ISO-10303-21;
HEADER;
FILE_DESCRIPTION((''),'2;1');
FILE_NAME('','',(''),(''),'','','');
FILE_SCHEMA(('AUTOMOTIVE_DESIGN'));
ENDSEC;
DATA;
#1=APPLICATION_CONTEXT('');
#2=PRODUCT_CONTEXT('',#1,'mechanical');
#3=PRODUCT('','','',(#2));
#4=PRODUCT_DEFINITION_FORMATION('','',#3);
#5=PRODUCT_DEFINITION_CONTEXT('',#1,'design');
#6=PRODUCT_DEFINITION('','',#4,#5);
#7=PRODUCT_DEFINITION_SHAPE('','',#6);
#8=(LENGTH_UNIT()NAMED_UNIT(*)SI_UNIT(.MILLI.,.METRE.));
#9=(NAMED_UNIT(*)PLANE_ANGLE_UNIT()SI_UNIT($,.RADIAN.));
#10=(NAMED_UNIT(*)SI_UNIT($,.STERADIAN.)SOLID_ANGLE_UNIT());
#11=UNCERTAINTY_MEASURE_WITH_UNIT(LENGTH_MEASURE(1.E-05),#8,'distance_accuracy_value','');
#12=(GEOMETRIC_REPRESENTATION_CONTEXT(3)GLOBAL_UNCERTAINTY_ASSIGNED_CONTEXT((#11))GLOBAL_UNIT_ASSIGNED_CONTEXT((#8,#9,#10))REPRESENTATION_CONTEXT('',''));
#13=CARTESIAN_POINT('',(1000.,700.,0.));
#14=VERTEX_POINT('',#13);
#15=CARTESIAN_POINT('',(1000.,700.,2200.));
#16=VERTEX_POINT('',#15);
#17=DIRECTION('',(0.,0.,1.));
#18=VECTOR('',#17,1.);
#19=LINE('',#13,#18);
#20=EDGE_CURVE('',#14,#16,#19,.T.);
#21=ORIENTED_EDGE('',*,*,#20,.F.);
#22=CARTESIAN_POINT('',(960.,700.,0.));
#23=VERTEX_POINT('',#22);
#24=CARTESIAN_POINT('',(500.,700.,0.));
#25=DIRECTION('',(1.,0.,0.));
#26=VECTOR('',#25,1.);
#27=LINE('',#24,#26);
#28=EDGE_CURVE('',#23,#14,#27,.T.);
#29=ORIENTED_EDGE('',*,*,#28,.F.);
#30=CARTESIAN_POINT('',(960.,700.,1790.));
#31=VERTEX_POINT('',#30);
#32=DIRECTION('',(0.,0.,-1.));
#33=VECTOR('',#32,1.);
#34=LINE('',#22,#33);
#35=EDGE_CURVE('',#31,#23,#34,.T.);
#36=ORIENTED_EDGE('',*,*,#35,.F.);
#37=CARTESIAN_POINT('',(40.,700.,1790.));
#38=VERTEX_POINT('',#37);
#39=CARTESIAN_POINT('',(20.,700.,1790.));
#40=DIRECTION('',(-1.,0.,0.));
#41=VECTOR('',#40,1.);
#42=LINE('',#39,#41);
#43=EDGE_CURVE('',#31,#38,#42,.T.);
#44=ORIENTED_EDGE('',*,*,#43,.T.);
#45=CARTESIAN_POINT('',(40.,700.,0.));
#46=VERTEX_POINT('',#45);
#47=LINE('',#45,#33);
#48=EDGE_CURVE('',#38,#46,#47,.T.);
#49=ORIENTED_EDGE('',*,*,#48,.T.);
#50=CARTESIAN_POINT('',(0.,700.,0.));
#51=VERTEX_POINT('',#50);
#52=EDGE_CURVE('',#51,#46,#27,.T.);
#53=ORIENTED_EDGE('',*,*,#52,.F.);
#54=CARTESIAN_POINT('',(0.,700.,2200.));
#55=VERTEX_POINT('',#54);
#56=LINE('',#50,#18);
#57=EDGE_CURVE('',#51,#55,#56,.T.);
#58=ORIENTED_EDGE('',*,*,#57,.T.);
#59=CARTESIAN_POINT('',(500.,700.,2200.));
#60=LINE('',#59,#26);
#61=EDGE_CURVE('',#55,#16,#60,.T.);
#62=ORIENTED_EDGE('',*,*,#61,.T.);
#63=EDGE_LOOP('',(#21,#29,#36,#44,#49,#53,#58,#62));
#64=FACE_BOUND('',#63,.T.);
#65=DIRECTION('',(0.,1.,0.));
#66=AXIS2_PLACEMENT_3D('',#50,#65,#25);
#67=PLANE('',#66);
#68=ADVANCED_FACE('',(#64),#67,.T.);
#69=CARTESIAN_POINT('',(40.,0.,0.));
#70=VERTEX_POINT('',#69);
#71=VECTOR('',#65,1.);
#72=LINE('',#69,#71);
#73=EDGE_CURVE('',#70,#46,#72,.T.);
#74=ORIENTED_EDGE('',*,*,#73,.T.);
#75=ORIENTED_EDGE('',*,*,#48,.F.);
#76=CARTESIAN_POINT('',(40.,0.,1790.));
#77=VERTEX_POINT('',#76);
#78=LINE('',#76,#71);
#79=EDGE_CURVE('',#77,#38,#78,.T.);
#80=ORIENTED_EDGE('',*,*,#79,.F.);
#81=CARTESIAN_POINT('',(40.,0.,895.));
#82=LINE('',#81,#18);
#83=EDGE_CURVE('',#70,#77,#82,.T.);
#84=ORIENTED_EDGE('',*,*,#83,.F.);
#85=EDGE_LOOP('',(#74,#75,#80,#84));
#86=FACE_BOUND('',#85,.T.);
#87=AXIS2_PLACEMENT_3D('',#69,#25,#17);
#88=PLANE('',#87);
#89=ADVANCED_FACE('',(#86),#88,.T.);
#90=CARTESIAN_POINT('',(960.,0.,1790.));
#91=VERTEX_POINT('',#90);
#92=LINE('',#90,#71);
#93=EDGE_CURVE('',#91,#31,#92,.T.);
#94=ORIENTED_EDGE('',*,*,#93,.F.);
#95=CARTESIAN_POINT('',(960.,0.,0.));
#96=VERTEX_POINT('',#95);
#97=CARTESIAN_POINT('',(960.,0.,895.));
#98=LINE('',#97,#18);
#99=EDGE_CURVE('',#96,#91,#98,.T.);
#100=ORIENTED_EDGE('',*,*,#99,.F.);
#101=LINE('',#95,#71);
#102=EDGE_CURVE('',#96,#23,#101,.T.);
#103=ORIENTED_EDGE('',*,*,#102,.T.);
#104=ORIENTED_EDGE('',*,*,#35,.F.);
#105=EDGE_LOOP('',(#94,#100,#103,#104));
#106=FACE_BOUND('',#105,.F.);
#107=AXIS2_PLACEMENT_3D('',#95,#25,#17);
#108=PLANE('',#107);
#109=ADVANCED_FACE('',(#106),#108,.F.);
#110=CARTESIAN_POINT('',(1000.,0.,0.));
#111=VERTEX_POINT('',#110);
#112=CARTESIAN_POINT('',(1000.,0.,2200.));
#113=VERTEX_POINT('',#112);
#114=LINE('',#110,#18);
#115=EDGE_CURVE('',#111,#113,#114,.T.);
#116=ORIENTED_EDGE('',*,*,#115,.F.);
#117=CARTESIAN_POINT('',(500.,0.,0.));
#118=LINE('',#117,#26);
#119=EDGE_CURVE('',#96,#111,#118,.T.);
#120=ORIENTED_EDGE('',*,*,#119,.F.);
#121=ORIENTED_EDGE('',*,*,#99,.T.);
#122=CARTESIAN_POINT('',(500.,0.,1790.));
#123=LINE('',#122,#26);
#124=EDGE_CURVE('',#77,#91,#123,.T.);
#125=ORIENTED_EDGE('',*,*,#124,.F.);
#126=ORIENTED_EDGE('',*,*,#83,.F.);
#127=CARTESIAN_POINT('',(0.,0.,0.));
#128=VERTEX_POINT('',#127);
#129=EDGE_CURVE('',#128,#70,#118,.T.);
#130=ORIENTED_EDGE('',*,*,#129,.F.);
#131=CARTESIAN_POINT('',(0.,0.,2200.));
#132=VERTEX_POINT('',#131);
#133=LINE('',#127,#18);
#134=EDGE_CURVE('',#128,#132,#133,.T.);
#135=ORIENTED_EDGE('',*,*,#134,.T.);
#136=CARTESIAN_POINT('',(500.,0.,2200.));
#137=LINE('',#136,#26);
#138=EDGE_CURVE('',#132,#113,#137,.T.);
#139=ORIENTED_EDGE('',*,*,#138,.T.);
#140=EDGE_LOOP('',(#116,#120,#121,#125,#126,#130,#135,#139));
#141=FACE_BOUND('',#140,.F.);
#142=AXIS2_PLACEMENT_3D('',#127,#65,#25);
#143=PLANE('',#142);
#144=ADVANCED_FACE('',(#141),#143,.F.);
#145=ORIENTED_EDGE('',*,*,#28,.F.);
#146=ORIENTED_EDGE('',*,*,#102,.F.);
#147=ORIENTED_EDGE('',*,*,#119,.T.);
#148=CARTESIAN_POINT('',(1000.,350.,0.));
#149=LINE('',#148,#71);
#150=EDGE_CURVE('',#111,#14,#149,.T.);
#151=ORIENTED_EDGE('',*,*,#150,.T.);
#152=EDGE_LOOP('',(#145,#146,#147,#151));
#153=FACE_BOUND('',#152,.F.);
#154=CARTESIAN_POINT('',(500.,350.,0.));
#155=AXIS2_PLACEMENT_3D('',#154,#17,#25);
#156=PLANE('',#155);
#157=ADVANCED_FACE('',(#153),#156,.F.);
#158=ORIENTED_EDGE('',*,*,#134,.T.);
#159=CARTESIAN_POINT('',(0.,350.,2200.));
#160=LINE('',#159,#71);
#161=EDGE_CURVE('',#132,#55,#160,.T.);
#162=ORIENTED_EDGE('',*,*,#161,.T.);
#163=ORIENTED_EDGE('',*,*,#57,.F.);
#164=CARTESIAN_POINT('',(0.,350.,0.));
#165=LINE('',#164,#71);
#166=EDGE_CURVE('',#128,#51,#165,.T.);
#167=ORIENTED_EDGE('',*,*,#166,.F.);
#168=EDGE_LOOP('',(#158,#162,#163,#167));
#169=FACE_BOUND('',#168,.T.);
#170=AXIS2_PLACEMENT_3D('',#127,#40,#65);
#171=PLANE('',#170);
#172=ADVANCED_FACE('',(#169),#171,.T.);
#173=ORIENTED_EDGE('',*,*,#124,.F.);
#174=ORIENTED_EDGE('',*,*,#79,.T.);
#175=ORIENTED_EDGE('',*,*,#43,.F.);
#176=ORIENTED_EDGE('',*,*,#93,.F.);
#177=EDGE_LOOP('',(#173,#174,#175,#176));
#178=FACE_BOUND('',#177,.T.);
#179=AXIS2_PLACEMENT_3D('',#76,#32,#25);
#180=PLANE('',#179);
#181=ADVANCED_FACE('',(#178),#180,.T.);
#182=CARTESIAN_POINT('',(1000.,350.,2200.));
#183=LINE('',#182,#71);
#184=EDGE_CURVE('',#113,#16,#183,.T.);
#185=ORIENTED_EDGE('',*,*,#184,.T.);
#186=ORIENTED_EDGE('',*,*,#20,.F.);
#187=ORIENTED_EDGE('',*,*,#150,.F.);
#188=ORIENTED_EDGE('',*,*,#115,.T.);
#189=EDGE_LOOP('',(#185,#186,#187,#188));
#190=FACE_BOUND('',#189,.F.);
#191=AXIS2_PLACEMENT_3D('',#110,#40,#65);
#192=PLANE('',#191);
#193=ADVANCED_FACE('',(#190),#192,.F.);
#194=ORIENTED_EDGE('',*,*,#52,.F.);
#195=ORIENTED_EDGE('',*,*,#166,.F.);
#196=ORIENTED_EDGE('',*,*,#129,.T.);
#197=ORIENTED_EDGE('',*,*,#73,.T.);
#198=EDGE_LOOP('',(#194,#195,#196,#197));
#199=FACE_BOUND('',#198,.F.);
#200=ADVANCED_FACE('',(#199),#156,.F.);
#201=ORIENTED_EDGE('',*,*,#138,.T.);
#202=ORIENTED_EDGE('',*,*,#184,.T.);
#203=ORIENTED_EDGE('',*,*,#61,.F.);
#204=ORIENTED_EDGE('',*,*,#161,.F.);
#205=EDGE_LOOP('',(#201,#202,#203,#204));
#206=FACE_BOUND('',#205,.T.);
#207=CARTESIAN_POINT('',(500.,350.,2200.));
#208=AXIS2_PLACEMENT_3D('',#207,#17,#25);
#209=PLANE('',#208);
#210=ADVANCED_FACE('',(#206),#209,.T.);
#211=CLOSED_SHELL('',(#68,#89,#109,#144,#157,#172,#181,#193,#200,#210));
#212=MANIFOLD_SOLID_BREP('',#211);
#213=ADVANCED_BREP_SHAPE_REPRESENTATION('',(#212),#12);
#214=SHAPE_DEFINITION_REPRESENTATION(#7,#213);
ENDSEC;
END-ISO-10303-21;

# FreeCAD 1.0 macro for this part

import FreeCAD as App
import Part
import Sketcher

doc = App.newDocument("Part")
body = doc.addObject("PartDesign::Body", "Body")

# Sketch on XY plane
sketch1 = doc.addObject("Sketcher::SketchObject", "Sketch")
body.addObject(sketch1)
sketch1.AttachmentSupport = (doc.XY_Plane, [""])
sketch1.MapMode = "FlatFace"
sketch1.addGeometry(Part.LineSegment(App.Vector(0, 700, 0), App.Vector(0, 0, 0)), False)
sketch1.addGeometry(Part.LineSegment(App.Vector(0, 0, 0), App.Vector(1000, 0, 0)), False)
sketch1.addGeometry(Part.LineSegment(App.Vector(1000, 0, 0), App.Vector(1000, 700, 0)), False)
sketch1.addGeometry(Part.LineSegment(App.Vector(1000, 700, 0), App.Vector(0, 700, 0)), False)
sketch1.addConstraint(Sketcher.Constraint("Coincident", 0, 2, 1, 1))
sketch1.addConstraint(Sketcher.Constraint("Coincident", 1, 2, 2, 1))
sketch1.addConstraint(Sketcher.Constraint("Coincident", 2, 2, 3, 1))
sketch1.addConstraint(Sketcher.Constraint("Coincident", 3, 2, 0, 1))
sketch1.addConstraint(Sketcher.Constraint("Vertical", 0))
sketch1.addConstraint(Sketcher.Constraint("Horizontal", 1))
sketch1.addConstraint(Sketcher.Constraint("Vertical", 2))
sketch1.addConstraint(Sketcher.Constraint("Horizontal", 3))
sketch1.addConstraint(Sketcher.Constraint("Coincident", 0, 2, -1, 1))
sketch1.addConstraint(Sketcher.Constraint("DistanceX", 1, 1, 1, 2, 1000.0))
sketch1.addConstraint(Sketcher.Constraint("DistanceY", 0, 2, 0, 1, 700.0))
pad1 = doc.addObject("PartDesign::Pad", "Pad")
body.addObject(pad1)
pad1.Profile = sketch1
pad1.Length = 2200

# Sketch on XZ plane
sketch2 = doc.addObject("Sketcher::SketchObject", "Sketch001")
body.addObject(sketch2)
sketch2.AttachmentSupport = (doc.XZ_Plane, [""])
sketch2.MapMode = "FlatFace"
sketch2.addGeometry(Part.LineSegment(App.Vector(40, 1790, 0), App.Vector(40, 0, 0)), False)
sketch2.addGeometry(Part.LineSegment(App.Vector(40, 0, 0), App.Vector(960, 0, 0)), False)
sketch2.addGeometry(Part.LineSegment(App.Vector(960, 0, 0), App.Vector(960, 1790, 0)), False)
sketch2.addGeometry(Part.LineSegment(App.Vector(960, 1790, 0), App.Vector(40, 1790, 0)), False)
sketch2.addConstraint(Sketcher.Constraint("Coincident", 0, 2, 1, 1))
sketch2.addConstraint(Sketcher.Constraint("Coincident", 1, 2, 2, 1))
sketch2.addConstraint(Sketcher.Constraint("Coincident", 2, 2, 3, 1))
sketch2.addConstraint(Sketcher.Constraint("Coincident", 3, 2, 0, 1))
sketch2.addConstraint(Sketcher.Constraint("Vertical", 0))
sketch2.addConstraint(Sketcher.Constraint("Horizontal", 1))
sketch2.addConstraint(Sketcher.Constraint("Vertical", 2))
sketch2.addConstraint(Sketcher.Constraint("Horizontal", 3))
sketch2.addConstraint(Sketcher.Constraint("PointOnObject", 0, 2, -1))
sketch2.addConstraint(Sketcher.Constraint("DistanceX", 1, 1, 1, 2, 920.0))
sketch2.addConstraint(Sketcher.Constraint("DistanceY", 0, 2, 0, 1, 1790.0))
sketch2.addConstraint(Sketcher.Constraint("DistanceX", -1, 1, 0, 2, 40.0))
pocket1 = doc.addObject("PartDesign::Pocket", "Pocket")
body.addObject(pocket1)
pocket1.Profile = sketch2
pocket1.Type = "ThroughAll"

doc.recompute()
